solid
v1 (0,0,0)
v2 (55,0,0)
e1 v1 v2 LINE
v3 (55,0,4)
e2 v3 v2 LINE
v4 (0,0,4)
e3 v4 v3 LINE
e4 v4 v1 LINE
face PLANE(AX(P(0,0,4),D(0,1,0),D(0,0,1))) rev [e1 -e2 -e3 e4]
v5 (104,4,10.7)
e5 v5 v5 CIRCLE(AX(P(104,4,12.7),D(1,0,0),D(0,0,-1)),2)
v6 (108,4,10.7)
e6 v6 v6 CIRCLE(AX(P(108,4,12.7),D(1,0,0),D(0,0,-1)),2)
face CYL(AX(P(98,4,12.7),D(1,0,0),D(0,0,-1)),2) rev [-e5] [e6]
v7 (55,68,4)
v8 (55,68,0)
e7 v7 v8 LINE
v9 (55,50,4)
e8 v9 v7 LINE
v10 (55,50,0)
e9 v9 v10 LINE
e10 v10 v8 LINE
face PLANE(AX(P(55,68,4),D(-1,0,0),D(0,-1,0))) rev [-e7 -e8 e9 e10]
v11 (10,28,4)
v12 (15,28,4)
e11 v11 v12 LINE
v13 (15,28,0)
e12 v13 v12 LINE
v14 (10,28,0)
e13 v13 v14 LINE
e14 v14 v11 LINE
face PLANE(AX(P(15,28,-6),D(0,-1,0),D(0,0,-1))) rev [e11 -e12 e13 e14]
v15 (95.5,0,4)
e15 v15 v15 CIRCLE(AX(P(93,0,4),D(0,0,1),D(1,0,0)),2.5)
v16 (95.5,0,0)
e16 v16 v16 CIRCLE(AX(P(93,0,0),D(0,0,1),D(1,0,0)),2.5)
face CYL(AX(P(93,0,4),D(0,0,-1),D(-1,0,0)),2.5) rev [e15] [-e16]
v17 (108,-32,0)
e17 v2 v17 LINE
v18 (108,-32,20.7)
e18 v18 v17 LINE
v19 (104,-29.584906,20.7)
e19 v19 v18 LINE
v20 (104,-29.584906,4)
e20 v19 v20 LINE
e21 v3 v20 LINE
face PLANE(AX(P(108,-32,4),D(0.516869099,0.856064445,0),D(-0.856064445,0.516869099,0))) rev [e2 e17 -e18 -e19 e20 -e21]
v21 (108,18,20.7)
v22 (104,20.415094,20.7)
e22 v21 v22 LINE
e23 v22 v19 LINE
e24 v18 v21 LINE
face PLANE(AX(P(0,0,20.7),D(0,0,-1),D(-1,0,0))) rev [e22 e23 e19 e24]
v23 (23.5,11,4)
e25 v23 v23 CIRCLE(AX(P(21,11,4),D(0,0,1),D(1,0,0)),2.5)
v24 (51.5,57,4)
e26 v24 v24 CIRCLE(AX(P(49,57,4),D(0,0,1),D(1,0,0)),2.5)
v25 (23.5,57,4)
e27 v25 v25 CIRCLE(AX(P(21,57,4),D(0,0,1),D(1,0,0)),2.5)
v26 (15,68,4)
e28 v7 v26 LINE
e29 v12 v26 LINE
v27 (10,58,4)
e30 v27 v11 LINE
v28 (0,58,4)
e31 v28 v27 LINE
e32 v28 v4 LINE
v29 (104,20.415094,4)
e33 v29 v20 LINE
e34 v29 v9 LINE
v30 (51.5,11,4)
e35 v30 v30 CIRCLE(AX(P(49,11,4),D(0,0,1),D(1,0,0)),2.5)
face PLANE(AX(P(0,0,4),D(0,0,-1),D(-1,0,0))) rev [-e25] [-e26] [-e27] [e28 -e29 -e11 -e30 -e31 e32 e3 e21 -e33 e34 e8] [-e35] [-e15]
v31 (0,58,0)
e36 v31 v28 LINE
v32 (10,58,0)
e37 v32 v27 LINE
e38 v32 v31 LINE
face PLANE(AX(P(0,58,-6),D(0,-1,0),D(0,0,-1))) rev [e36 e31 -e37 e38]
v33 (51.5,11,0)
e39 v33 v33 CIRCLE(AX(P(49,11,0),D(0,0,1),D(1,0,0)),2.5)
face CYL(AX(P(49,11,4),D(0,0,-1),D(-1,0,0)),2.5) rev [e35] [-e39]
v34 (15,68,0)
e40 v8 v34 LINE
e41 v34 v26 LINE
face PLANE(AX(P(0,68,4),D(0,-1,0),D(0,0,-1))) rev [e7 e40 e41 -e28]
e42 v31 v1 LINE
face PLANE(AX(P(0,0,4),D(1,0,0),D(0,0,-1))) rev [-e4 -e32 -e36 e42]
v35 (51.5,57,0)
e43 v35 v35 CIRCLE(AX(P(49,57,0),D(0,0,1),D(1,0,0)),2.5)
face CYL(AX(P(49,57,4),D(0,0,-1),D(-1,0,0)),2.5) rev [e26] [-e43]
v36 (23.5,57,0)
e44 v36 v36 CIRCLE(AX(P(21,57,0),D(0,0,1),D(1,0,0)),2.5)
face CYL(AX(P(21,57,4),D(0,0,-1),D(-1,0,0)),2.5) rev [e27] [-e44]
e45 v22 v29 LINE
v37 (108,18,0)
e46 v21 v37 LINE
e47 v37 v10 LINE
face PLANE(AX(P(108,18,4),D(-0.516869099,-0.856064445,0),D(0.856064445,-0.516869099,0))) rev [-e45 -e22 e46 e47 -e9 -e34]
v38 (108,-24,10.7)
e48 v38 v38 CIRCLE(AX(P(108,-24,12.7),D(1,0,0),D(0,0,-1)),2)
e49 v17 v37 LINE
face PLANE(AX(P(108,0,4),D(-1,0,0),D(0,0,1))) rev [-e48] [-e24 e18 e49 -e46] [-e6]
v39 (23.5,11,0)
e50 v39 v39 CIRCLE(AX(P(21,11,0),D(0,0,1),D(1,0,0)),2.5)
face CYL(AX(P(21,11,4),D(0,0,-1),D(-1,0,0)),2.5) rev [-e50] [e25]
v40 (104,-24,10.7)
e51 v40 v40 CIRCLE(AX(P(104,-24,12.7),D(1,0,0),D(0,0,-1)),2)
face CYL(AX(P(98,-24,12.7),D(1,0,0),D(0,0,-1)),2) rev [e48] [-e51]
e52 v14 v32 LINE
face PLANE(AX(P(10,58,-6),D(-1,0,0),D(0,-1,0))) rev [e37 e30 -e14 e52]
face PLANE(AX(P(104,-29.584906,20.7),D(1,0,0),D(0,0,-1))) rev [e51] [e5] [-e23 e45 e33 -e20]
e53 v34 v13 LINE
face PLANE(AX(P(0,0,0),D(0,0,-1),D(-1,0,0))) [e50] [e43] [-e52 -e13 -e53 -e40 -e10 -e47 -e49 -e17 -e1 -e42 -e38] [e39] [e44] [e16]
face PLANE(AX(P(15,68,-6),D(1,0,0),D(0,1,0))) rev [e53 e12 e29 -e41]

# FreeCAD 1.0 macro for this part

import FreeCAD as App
import Part
import Sketcher

V = App.Vector

doc = App.newDocument("Part")
body = doc.addObject("PartDesign::Body", "Body")

# Sketch on XY plane
sketch1 = body.newObject("Sketcher::SketchObject", "Sketch")
sketch1.AttachmentSupport = (doc.getObject("XY_Plane"), [""])
sketch1.MapMode = "FlatFace"
sketch1.addGeometry([
    Part.LineSegment(V(0, 0, 0), V(55, 0, 0)),  # 0
    Part.LineSegment(V(55, 0, 0), V(108, -32, 0)),  # 1
    Part.LineSegment(V(108, -32, 0), V(108, 18, 0)),  # 2
    Part.LineSegment(V(108, 18, 0), V(55, 50, 0)),  # 3
    Part.LineSegment(V(55, 50, 0), V(55, 68, 0)),  # 4
    Part.LineSegment(V(55, 68, 0), V(0, 68, 0)),  # 5
    Part.LineSegment(V(0, 68, 0), V(0, 0, 0)),  # 6
    Part.Circle(V(21, 11, 0), V(0, 0, 1), 2.5),  # 7
    Part.Circle(V(49, 11, 0), V(0, 0, 1), 2.5),  # 8
    Part.Circle(V(93, 0, 0), V(0, 0, 1), 2.5),  # 9
    Part.Circle(V(21, 57, 0), V(0, 0, 1), 2.5),  # 10
    Part.Circle(V(49, 57, 0), V(0, 0, 1), 2.5),  # 11
], False)
sketch1.addConstraint([
    Sketcher.Constraint("Coincident", 0, 2, 1, 1),
    Sketcher.Constraint("Coincident", 1, 2, 2, 1),
    Sketcher.Constraint("Coincident", 2, 2, 3, 1),
    Sketcher.Constraint("Coincident", 3, 2, 4, 1),
    Sketcher.Constraint("Coincident", 4, 2, 5, 1),
    Sketcher.Constraint("Coincident", 5, 2, 6, 1),
    Sketcher.Constraint("Coincident", 6, 2, 0, 1),
    Sketcher.Constraint("Horizontal", 0),
    Sketcher.Constraint("Vertical", 2),
    Sketcher.Constraint("Vertical", 4),
    Sketcher.Constraint("Horizontal", 5),
    Sketcher.Constraint("Vertical", 6),
    Sketcher.Constraint("Coincident", 6, 2, -1, 1),
    Sketcher.Constraint("Equal", 7, 8),
    Sketcher.Constraint("Equal", 8, 9),
    Sketcher.Constraint("Equal", 9, 10),
    Sketcher.Constraint("Equal", 10, 11),
    Sketcher.Constraint("PointOnObject", 9, 3, -1),
    Sketcher.Constraint("Parallel", 1, 3),
    Sketcher.Constraint("Horizontal", 7, 3, 8, 3),
    Sketcher.Constraint("Horizontal", 10, 3, 11, 3),
    Sketcher.Constraint("Vertical", 7, 3, 10, 3),
    Sketcher.Constraint("Vertical", 8, 3, 11, 3),
    Sketcher.Constraint("Vertical", 0, 2, 3, 2),
    Sketcher.Constraint("Diameter", 7, 5.0),
    Sketcher.Constraint("DistanceX", 0, 1, 0, 2, 55.0),
    Sketcher.Constraint("DistanceY", 2, 1, 2, 2, 50.0),
    Sketcher.Constraint("DistanceY", 4, 1, 4, 2, 18.0),
    Sketcher.Constraint("DistanceX", -1, 1, 7, 3, 21.0),
    Sketcher.Constraint("DistanceY", -1, 1, 7, 3, 11.0),
    Sketcher.Constraint("DistanceX", -1, 1, 8, 3, 49.0),
    Sketcher.Constraint("DistanceX", -1, 1, 9, 3, 93.0),
    Sketcher.Constraint("DistanceY", -1, 1, 10, 3, 57.0),
    Sketcher.Constraint("DistanceX", -1, 1, 1, 2, 108.0),
    Sketcher.Constraint("DistanceY", 1, 2, -1, 1, 32.0),
])
pad1 = body.newObject("PartDesign::Pad", "Pad")
pad1.Profile = sketch1
pad1.Length = 4

# Sketch on XY plane
sketch2 = body.newObject("Sketcher::SketchObject", "Sketch001")
sketch2.AttachmentSupport = (doc.getObject("XY_Plane"), [""])
sketch2.MapMode = "FlatFace"
sketch2.AttachmentOffset = App.Placement(V(0, 0, 4), App.Rotation())
sketch2.addGeometry([
    Part.LineSegment(V(108, -32, 0), V(108, 18, 0)),
    Part.LineSegment(V(108, 18, 0), V(104, 20.4, 0)),
    Part.LineSegment(V(104, 20.4, 0), V(104, -29.6, 0)),
    Part.LineSegment(V(104, -29.6, 0), V(108, -32, 0)),
], False)
sketch2.addConstraint([
    Sketcher.Constraint("Coincident", 0, 2, 1, 1),
    Sketcher.Constraint("Coincident", 1, 2, 2, 1),
    Sketcher.Constraint("Coincident", 2, 2, 3, 1),
    Sketcher.Constraint("Coincident", 3, 2, 0, 1),
    Sketcher.Constraint("Vertical", 0),
    Sketcher.Constraint("Vertical", 2),
    Sketcher.Constraint("Parallel", 1, 3),
    Sketcher.Constraint("DistanceY", 0, 1, 0, 2, 50.0),
    Sketcher.Constraint("DistanceX", -1, 1, 0, 2, 108.0),
    Sketcher.Constraint("DistanceY", -1, 1, 0, 2, 18.0),
    Sketcher.Constraint("DistanceX", -1, 1, 1, 2, 104.0),
    Sketcher.Constraint("Distance", 1, 4.672545),
])
pad2 = body.newObject("PartDesign::Pad", "Pad001")
pad2.Profile = sketch2
pad2.Length = 16.7

# Sketch on YZ plane
sketch3 = body.newObject("Sketcher::SketchObject", "Sketch002")
sketch3.AttachmentSupport = (doc.getObject("YZ_Plane"), [""])
sketch3.MapMode = "FlatFace"
sketch3.AttachmentOffset = App.Placement(V(0, 0, 108), App.Rotation())
sketch3.addGeometry([
    Part.Circle(V(4, 12.7, 0), V(0, 0, 1), 2),
    Part.Circle(V(-24, 12.7, 0), V(0, 0, 1), 2),
], False)
sketch3.addConstraint([
    Sketcher.Constraint("Equal", 0, 1),
    Sketcher.Constraint("Horizontal", 0, 3, 1, 3),
    Sketcher.Constraint("Diameter", 0, 4.0),
    Sketcher.Constraint("DistanceX", -1, 1, 0, 3, 4.0),
    Sketcher.Constraint("DistanceX", 1, 3, -1, 1, 24.0),
    Sketcher.Constraint("DistanceY", -1, 1, 0, 3, 12.7),
])
pocket1 = body.newObject("PartDesign::Pocket", "Pocket")
pocket1.Profile = sketch3
pocket1.Length = 10

# Sketch on XY plane
sketch4 = body.newObject("Sketcher::SketchObject", "Sketch003")
sketch4.AttachmentSupport = (doc.getObject("XY_Plane"), [""])
sketch4.MapMode = "FlatFace"
sketch4.AttachmentOffset = App.Placement(V(0, 0, 4), App.Rotation())
sketch4.addGeometry([
    Part.LineSegment(V(15, 68, 0), V(0, 68, 0)),  # 0
    Part.LineSegment(V(0, 68, 0), V(0, 58, 0)),  # 1
    Part.LineSegment(V(0, 58, 0), V(10, 58, 0)),  # 2
    Part.LineSegment(V(10, 58, 0), V(10, 28, 0)),  # 3
    Part.LineSegment(V(10, 28, 0), V(15, 28, 0)),  # 4
    Part.LineSegment(V(15, 28, 0), V(15, 68, 0)),  # 5
], False)
sketch4.addConstraint([
    Sketcher.Constraint("Coincident", 0, 2, 1, 1),
    Sketcher.Constraint("Coincident", 1, 2, 2, 1),
    Sketcher.Constraint("Coincident", 2, 2, 3, 1),
    Sketcher.Constraint("Coincident", 3, 2, 4, 1),
    Sketcher.Constraint("Coincident", 4, 2, 5, 1),
    Sketcher.Constraint("Coincident", 5, 2, 0, 1),
    Sketcher.Constraint("Horizontal", 0),
    Sketcher.Constraint("Vertical", 1),
    Sketcher.Constraint("Horizontal", 2),
    Sketcher.Constraint("Vertical", 3),
    Sketcher.Constraint("Horizontal", 4),
    Sketcher.Constraint("Vertical", 5),
    Sketcher.Constraint("PointOnObject", 0, 2, -2),
    Sketcher.Constraint("Equal", 2, 1),
    Sketcher.Constraint("DistanceX", 0, 2, 0, 1, 15.0),
    Sketcher.Constraint("DistanceX", 2, 1, 2, 2, 10.0),
    Sketcher.Constraint("DistanceY", 3, 2, 3, 1, 30.0),
    Sketcher.Constraint("DistanceY", -1, 1, 0, 2, 68.0),
])
pocket2 = body.newObject("PartDesign::Pocket", "Pocket001")
pocket2.Profile = sketch4
pocket2.Length = 10

doc.recompute()
